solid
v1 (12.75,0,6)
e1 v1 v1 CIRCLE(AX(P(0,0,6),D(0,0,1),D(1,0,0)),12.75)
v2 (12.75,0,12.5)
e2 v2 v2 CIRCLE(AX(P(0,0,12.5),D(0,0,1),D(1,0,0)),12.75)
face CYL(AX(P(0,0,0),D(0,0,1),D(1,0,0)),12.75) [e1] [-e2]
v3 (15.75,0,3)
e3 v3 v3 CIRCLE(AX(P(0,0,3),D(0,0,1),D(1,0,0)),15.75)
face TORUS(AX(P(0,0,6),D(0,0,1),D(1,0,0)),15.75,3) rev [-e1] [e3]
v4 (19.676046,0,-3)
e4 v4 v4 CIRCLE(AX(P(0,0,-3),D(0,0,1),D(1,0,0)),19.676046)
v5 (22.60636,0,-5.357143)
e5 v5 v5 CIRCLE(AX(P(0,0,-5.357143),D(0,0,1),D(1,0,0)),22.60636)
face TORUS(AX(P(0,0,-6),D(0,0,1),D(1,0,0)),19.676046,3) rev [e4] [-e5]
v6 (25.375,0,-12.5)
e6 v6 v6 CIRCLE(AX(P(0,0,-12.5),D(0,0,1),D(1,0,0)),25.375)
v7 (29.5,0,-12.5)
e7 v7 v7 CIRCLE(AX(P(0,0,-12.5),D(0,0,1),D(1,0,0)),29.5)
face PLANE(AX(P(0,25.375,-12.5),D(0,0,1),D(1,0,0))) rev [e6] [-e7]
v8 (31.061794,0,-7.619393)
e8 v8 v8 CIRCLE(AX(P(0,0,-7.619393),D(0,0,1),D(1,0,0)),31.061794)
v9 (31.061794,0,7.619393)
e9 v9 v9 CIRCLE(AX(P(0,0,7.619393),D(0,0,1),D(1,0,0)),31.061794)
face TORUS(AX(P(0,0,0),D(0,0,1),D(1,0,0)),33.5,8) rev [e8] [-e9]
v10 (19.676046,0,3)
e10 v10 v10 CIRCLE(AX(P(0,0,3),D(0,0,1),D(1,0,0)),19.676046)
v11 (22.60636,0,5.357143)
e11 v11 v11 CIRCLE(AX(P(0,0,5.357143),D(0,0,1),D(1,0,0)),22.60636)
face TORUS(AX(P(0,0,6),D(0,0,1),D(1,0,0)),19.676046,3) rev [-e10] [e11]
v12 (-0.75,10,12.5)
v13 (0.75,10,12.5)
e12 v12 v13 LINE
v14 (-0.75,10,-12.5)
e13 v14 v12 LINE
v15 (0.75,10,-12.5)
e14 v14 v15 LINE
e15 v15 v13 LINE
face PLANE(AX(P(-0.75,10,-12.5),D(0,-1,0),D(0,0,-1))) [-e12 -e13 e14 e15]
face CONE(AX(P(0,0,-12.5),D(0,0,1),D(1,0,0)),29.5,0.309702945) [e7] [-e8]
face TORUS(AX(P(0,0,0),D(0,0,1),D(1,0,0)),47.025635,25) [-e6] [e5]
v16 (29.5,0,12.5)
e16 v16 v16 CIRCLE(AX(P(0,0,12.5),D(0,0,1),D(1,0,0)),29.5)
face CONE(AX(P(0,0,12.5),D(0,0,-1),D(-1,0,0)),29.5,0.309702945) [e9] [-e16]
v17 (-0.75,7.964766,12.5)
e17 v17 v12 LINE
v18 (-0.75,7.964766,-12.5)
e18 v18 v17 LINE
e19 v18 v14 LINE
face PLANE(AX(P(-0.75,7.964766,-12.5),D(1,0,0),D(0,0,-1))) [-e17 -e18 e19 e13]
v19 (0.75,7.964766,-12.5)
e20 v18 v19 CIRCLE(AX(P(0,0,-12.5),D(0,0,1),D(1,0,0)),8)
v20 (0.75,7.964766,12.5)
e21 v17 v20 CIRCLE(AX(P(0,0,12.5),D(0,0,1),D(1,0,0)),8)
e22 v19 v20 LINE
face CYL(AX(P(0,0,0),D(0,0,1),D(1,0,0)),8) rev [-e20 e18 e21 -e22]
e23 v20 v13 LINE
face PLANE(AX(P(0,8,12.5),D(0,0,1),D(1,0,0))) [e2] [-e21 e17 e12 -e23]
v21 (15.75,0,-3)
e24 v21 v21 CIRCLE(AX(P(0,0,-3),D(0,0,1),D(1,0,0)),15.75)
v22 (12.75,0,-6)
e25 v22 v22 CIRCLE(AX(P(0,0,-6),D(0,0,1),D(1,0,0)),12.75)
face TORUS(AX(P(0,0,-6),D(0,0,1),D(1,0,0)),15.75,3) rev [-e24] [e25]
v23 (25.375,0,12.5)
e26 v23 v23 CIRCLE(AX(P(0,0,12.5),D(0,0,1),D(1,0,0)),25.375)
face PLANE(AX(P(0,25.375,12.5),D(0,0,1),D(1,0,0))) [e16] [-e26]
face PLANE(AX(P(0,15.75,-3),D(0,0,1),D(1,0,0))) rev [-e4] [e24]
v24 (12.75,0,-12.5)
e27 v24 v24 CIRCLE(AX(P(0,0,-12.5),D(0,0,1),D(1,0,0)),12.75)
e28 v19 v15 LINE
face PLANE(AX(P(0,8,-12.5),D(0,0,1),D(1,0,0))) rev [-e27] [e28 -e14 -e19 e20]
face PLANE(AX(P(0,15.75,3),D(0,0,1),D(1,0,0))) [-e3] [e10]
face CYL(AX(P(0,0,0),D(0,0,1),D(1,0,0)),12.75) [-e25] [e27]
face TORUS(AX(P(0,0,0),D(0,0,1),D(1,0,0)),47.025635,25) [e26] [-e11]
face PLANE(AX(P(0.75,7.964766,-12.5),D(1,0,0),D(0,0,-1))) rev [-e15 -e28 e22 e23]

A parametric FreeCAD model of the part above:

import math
import FreeCAD as App
import Part
import Sketcher
from FreeCAD import Vector
Q = App.Units.Quantity

doc = App.newDocument("Part")
body = doc.addObject("PartDesign::Body", "Body")

sketch1 = body.newObject("Sketcher::SketchObject", "Sketch")
sketch1.AttachmentSupport = (doc.getObject("YZ_Plane"), [""])
sketch1.MapMode = "FlatFace"
sketch1.addGeometry([
    Part.LineSegment(Vector(8, 12.5, 0), Vector(8, -12.5, 0)),
    Part.LineSegment(Vector(8, -12.5, 0), Vector(12.8, -12.5, 0)),
    Part.LineSegment(Vector(12.8, -12.5, 0), Vector(12.8, -6, 0)),
    Part.ArcOfCircle(Part.Circle(Vector(15.7, -6, 0), Vector(0, 0, 1), 3), math.radians(90), math.radians(180)),
    Part.LineSegment(Vector(15.8, -3, 0), Vector(19.7, -3, 0)),
    Part.ArcOfCircle(Part.Circle(Vector(19.7, -6, 0), Vector(0, 0, 1), 3), math.radians(12), math.radians(90)),
    Part.ArcOfCircle(Part.Circle(Vector(47, 0, 0), Vector(0, 0, 1), 25), math.radians(-167.63), math.radians(-150)),
    Part.LineSegment(Vector(25.4, -12.5, 0), Vector(29.5, -12.5, 0)),
    Part.LineSegment(Vector(29.5, -12.5, 0), Vector(31.1, -7.6, 0)),
    Part.ArcOfCircle(Part.Circle(Vector(33.5, 0, 0), Vector(0, 0, 1), 8), math.radians(108), math.radians(252)),
    Part.LineSegment(Vector(31.1, 7.6, 0), Vector(29.5, 12.5, 0)),
    Part.LineSegment(Vector(29.5, 12.5, 0), Vector(25.4, 12.5, 0)),
    Part.ArcOfCircle(Part.Circle(Vector(47, 0, 0), Vector(0, 0, 1), 25), math.radians(150), math.radians(167.63)),
    Part.ArcOfCircle(Part.Circle(Vector(19.7, 6, 0), Vector(0, 0, 1), 3), math.radians(-90), math.radians(-12)),
    Part.LineSegment(Vector(19.7, 3, 0), Vector(15.8, 3, 0)),
    Part.ArcOfCircle(Part.Circle(Vector(15.7, 6, 0), Vector(0, 0, 1), 3), math.radians(180), math.radians(270)),
    Part.LineSegment(Vector(12.8, 6, 0), Vector(12.8, 12.5, 0)),
    Part.LineSegment(Vector(12.8, 12.5, 0), Vector(8, 12.5, 0)),
], False)
sketch1.addConstraint([
    Sketcher.Constraint("Coincident", 0, 2, 1, 1),
    Sketcher.Constraint("Coincident", 1, 2, 2, 1),
    Sketcher.Constraint("Tangent", 2, 2, 3, 2),
    Sketcher.Constraint("Tangent", 3, 1, 4, 1),
    Sketcher.Constraint("Tangent", 4, 2, 5, 2),
    Sketcher.Constraint("Tangent", 5, 1, 6, 1),
    Sketcher.Constraint("Coincident", 6, 2, 7, 1),
    Sketcher.Constraint("Coincident", 7, 2, 8, 1),
    Sketcher.Constraint("Coincident", 8, 2, 9, 2),
    Sketcher.Constraint("Coincident", 9, 1, 10, 1),
    Sketcher.Constraint("Coincident", 10, 2, 11, 1),
    Sketcher.Constraint("Coincident", 11, 2, 12, 1),
    Sketcher.Constraint("Tangent", 12, 2, 13, 2),
    Sketcher.Constraint("Tangent", 13, 1, 14, 1),
    Sketcher.Constraint("Tangent", 14, 2, 15, 2),
    Sketcher.Constraint("Tangent", 15, 1, 16, 1),
    Sketcher.Constraint("Coincident", 16, 2, 17, 1),
    Sketcher.Constraint("Coincident", 17, 2, 0, 1),
    Sketcher.Constraint("Vertical", 0),
    Sketcher.Constraint("Horizontal", 1),
    Sketcher.Constraint("Vertical", 2),
    Sketcher.Constraint("Horizontal", 4),
    Sketcher.Constraint("Horizontal", 7),
    Sketcher.Constraint("Horizontal", 11),
    Sketcher.Constraint("Horizontal", 14),
    Sketcher.Constraint("Vertical", 16),
    Sketcher.Constraint("Horizontal", 17),
    Sketcher.Constraint("Coincident", 12, 3, 6, 3),
    Sketcher.Constraint("Equal", 3, 5),
    Sketcher.Constraint("Equal", 6, 12),
    Sketcher.Constraint("Equal", 5, 13),
    Sketcher.Constraint("Equal", 13, 15),
    Sketcher.Constraint("Symmetric", 5, 3, 13, 3, -1),
    Sketcher.Constraint("Symmetric", 8, 2, 9, 1, -1),
    Sketcher.Constraint("Symmetric", 7, 2, 10, 2, -1),
    Sketcher.Constraint("Symmetric", 1, 2, 16, 2, -1),
    Sketcher.Constraint("Horizontal", 1, 2, 6, 2),
    Sketcher.Constraint("Radius", 3, Q("3 mm")),
    Sketcher.Constraint("Radius", 6, Q("25 mm")),
    Sketcher.Constraint("Radius", 9, Q("8 mm")),
    Sketcher.Constraint("DistanceY", 0, 2, 0, 1, Q("25 mm")),
    Sketcher.Constraint("DistanceY", 2, 1, 2, 2, Q("6.5 mm")),
    Sketcher.Constraint("DistanceX", -1, 1, 0, 2, Q("8 mm")),
    Sketcher.Constraint("DistanceX", 7, 2, 9, 3, Q("4 mm")),
    Sketcher.Constraint("DistanceX", 1, 1, 1, 2, Q("4.75 mm")),
    Sketcher.Constraint("DistanceX", -1, 1, 9, 3, Q("33.5 mm")),
    Sketcher.Constraint("DistanceX", 7, 1, 7, 2, Q("4.125 mm")),
    Sketcher.Constraint("DistanceY", 8, 2, 5, 1, Q("2.26225 mm")),
])
revolution = body.newObject("PartDesign::Revolution", "Revolution")
revolution.Profile = sketch1
revolution.ReferenceAxis = (sketch1, ["V_Axis"])
revolution.Angle = 360

sketch2 = body.newObject("Sketcher::SketchObject", "Sketch001")
sketch2.AttachmentSupport = (doc.getObject("XY_Plane"), [""])
sketch2.MapMode = "FlatFace"
sketch2.AttachmentOffset = App.Placement(Vector(0, 0, 12.5), App.Rotation())
sketch2.addGeometry([
    Part.LineSegment(Vector(-0.8, 10, 0), Vector(-0.8, 8, 0)),
    Part.ArcOfCircle(Part.Circle(Vector(0, 0, 0), Vector(0, 0, 1), 8), math.radians(84.62), math.radians(95.38)),
    Part.LineSegment(Vector(0.8, 8, 0), Vector(0.8, 10, 0)),
    Part.LineSegment(Vector(0.8, 10, 0), Vector(-0.8, 10, 0)),
], False)
sketch2.addConstraint([
    Sketcher.Constraint("Coincident", 0, 2, 1, 2),
    Sketcher.Constraint("Coincident", 1, 1, 2, 1),
    Sketcher.Constraint("Coincident", 2, 2, 3, 1),
    Sketcher.Constraint("Coincident", 3, 2, 0, 1),
    Sketcher.Constraint("Vertical", 0),
    Sketcher.Constraint("Vertical", 2),
    Sketcher.Constraint("Horizontal", 3),
    Sketcher.Constraint("Coincident", 1, 3, -1, 1),
    Sketcher.Constraint("Horizontal", 0, 2, 1, 1),
    Sketcher.Constraint("Radius", 1, Q("8 mm")),
    Sketcher.Constraint("DistanceX", 3, 2, 3, 1, Q("1.5 mm")),
    Sketcher.Constraint("DistanceY", -1, 1, 2, 2, Q("10 mm")),
])
pocket1 = body.newObject("PartDesign::Pocket", "Pocket")
pocket1.Profile = sketch2
pocket1.Type = "ThroughAll"

doc.recompute()
